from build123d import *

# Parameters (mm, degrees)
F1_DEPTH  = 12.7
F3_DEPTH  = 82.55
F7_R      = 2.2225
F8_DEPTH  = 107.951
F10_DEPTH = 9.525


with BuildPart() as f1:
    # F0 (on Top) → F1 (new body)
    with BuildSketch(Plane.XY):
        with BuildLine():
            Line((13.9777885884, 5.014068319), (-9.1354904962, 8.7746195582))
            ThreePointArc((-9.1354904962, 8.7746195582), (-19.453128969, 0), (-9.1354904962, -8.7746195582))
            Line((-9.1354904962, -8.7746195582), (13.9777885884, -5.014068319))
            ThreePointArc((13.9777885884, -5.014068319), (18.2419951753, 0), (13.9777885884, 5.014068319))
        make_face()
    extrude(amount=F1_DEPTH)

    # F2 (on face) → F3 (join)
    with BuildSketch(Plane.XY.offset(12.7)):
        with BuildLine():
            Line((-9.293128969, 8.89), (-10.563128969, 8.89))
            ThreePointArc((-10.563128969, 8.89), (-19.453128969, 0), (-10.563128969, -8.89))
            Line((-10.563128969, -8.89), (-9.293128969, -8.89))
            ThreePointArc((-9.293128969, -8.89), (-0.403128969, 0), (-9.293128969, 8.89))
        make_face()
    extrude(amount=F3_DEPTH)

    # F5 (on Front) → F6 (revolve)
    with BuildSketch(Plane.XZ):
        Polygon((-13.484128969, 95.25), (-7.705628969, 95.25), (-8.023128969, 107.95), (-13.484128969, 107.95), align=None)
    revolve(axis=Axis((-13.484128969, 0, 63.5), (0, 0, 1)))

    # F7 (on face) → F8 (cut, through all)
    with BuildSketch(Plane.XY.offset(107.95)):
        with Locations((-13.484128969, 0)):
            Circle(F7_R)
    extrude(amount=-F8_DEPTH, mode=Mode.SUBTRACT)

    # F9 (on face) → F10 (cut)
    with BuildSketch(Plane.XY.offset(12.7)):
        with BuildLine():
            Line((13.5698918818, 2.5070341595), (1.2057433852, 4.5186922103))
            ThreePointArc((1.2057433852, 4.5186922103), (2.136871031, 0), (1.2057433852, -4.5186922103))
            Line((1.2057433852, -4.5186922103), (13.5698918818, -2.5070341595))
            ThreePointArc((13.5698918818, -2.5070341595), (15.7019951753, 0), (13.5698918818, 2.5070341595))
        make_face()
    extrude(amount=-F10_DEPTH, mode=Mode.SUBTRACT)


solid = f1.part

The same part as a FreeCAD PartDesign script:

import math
import FreeCAD as App
import Part
import Sketcher
Q = App.Units.Quantity

doc = App.newDocument("Part")
params = doc.addObject("Spreadsheet::Sheet", "Params")
for row, (alias, value) in enumerate([
    ("sketch1_radius", "0.2 in"),
    ("sketch1_radius2", "0.35 in"),
    ("pad1_length", "0.5 in"),
    ("sketch2_radius", "0.35 in"),
    ("sketch2_width", "0.05 in"),
    ("pad2_length", "3.25 in"),
    ("sketch3_height", "0.5 in"),
    ("sketch3_width", "0.215 in"),
    ("revolution_angle", "360 deg"),
    ("sketch4_diameter", "0.175 in"),
    ("sketch5_radius", "0.1 in"),
    ("sketch5_radius2", "0.45 in"),
    ("pocket2_length", "0.375 in"),
], start=1):
    params.set(f"A{row}", alias)
    params.set(f"B{row}", "=" + value)
    params.setAlias(f"B{row}", alias)

body = doc.addObject("PartDesign::Body", "Body")

# Sketch on XY plane
sketch1 = body.newObject("Sketcher::SketchObject", "Sketch")
sketch1.AttachmentSupport = (doc.getObject("XY_Plane"), [""])
sketch1.MapMode = "FlatFace"
sketch1.addGeometry([
    Part.LineSegment(App.Vector(14, 5, 0), App.Vector(-9, 9, 0)),
    Part.ArcOfCircle(Part.Circle(App.Vector(-11, 0, 0), App.Vector(0, 0, 1), 9), math.radians(81), math.radians(279)),
    Part.LineSegment(App.Vector(-9, -9, 0), App.Vector(14, -5, 0)),
    Part.ArcOfCircle(Part.Circle(App.Vector(13, 0, 0), App.Vector(0, 0, 1), 5), math.radians(-81), math.radians(81)),
], False)
sketch1.addConstraint([
    Sketcher.Constraint("Tangent", 0, 2, 1, 1),
    Sketcher.Constraint("Tangent", 1, 2, 2, 1),
    Sketcher.Constraint("Tangent", 2, 2, 3, 1),
    Sketcher.Constraint("Tangent", 3, 2, 0, 1),
    Sketcher.Constraint("Symmetric", 0, 2, 1, 2, -1),
    Sketcher.Constraint("Radius", 3, Q("0.2 in")),
    Sketcher.Constraint("Radius", 1, Q("0.35 in")),
    Sketcher.Constraint("DistanceX", 1, 3, -1, 1, Q("10.563129 mm")),
    Sketcher.Constraint("DistanceX", 0, 2, -1, 1, Q("9.13549 mm")),
])
sketch1.setExpression("Constraints[5]", "Params.sketch1_radius")
sketch1.setExpression("Constraints[6]", "Params.sketch1_radius2")
pad1 = body.newObject("PartDesign::Pad", "Pad")
pad1.Profile = sketch1
pad1.setExpression("Length", "Params.pad1_length")

# Sketch on XY plane
sketch2 = body.newObject("Sketcher::SketchObject", "Sketch001")
sketch2.AttachmentSupport = (doc.getObject("XY_Plane"), [""])
sketch2.MapMode = "FlatFace"
sketch2.AttachmentOffset = App.Placement(App.Vector(0, 0, 0.5 * 25.4), App.Rotation())
sketch2.addGeometry([
    Part.LineSegment(App.Vector(-9.3, 8.9, 0), App.Vector(-10.6, 8.9, 0)),
    Part.ArcOfCircle(Part.Circle(App.Vector(-10.6, 0, 0), App.Vector(0, 0, 1), 8.9), math.radians(90), math.radians(270)),
    Part.LineSegment(App.Vector(-10.6, -8.9, 0), App.Vector(-9.3, -8.9, 0)),
    Part.ArcOfCircle(Part.Circle(App.Vector(-9.3, 0, 0), App.Vector(0, 0, 1), 8.9), math.radians(-90), math.radians(90)),
], False)
sketch2.addConstraint([
    Sketcher.Constraint("Tangent", 0, 2, 1, 1),
    Sketcher.Constraint("Tangent", 1, 2, 2, 1),
    Sketcher.Constraint("Tangent", 2, 2, 3, 1),
    Sketcher.Constraint("Tangent", 3, 2, 0, 1),
    Sketcher.Constraint("Horizontal", 0),
    Sketcher.Constraint("Horizontal", 2),
    Sketcher.Constraint("PointOnObject", 1, 3, -1),
    Sketcher.Constraint("Radius", 1, Q("0.35 in")),
    Sketcher.Constraint("DistanceX", 0, 2, 0, 1, Q("0.05 in")),
    Sketcher.Constraint("DistanceX", 1, 3, -1, 1, Q("10.563129 mm")),
])
sketch2.setExpression("Constraints[7]", "Params.sketch2_radius")
sketch2.setExpression("Constraints[8]", "Params.sketch2_width")
pad2 = body.newObject("PartDesign::Pad", "Pad001")
pad2.Profile = sketch2
pad2.setExpression("Length", "Params.pad2_length")

# Sketch on XZ plane
sketch3 = body.newObject("Sketcher::SketchObject", "Sketch002")
sketch3.AttachmentSupport = (doc.getObject("XZ_Plane"), [""])
sketch3.MapMode = "FlatFace"
sketch3.addGeometry([
    Part.LineSegment(App.Vector(-13, 95, 0), App.Vector(-8, 95, 0)),
    Part.LineSegment(App.Vector(-8, 95, 0), App.Vector(-8, 108, 0)),
    Part.LineSegment(App.Vector(-8, 108, 0), App.Vector(-13, 108, 0)),
    Part.LineSegment(App.Vector(-13, 108, 0), App.Vector(-13, 95, 0)),
], False)
sketch3.addGeometry(Part.LineSegment(App.Vector(-13, 95, 0), App.Vector(-13, 108, 0)), True)  # axis
sketch3.addConstraint([
    Sketcher.Constraint("Coincident", 0, 2, 1, 1),
    Sketcher.Constraint("Coincident", 1, 2, 2, 1),
    Sketcher.Constraint("Coincident", 2, 2, 3, 1),
    Sketcher.Constraint("Coincident", 3, 2, 0, 1),
    Sketcher.Constraint("Horizontal", 0),
    Sketcher.Constraint("Horizontal", 2),
    Sketcher.Constraint("Vertical", 3),
    Sketcher.Constraint("Vertical", 4),
    Sketcher.Constraint("Coincident", 4, 1, 3, 2),
    Sketcher.Constraint("Horizontal", 1, 2, 4, 2),
    Sketcher.Constraint("DistanceY", 3, 2, 3, 1, Q("0.5 in")),
    Sketcher.Constraint("DistanceX", 2, 2, 2, 1, Q("0.215 in")),
    Sketcher.Constraint("DistanceY", -1, 1, 0, 2, Q("3.75 in")),
    Sketcher.Constraint("DistanceX", 0, 1, 0, 2, Q("0.2275 in")),
    Sketcher.Constraint("DistanceX", 0, 2, -1, 1, Q("7.705629 mm")),
])
sketch3.setExpression("Constraints[10]", "Params.sketch3_height")
sketch3.setExpression("Constraints[11]", "Params.sketch3_width")
revolution = body.newObject("PartDesign::Revolution", "Revolution")
revolution.Profile = sketch3
revolution.ReferenceAxis = (sketch3, ["Axis0"])
revolution.setExpression("Angle", "Params.revolution_angle")

# Sketch on XY plane
sketch4 = body.newObject("Sketcher::SketchObject", "Sketch003")
sketch4.AttachmentSupport = (doc.getObject("XY_Plane"), [""])
sketch4.MapMode = "FlatFace"
sketch4.AttachmentOffset = App.Placement(App.Vector(0, 0, 4.25 * 25.4), App.Rotation())
sketch4.addGeometry(Part.Circle(App.Vector(-13.5, 0, 0), App.Vector(0, 0, 1), 2.2), False)
sketch4.addConstraint([
    Sketcher.Constraint("PointOnObject", 0, 3, -1),
    Sketcher.Constraint("Diameter", 0, Q("0.175 in")),
    Sketcher.Constraint("DistanceX", 0, 3, -1, 1, Q("13.484129 mm")),
])
sketch4.setExpression("Constraints[1]", "Params.sketch4_diameter")
pocket1 = body.newObject("PartDesign::Pocket", "Pocket")
pocket1.Profile = sketch4
pocket1.Type = "ThroughAll"

# Sketch on XY plane
sketch5 = body.newObject("Sketcher::SketchObject", "Sketch004")
sketch5.AttachmentSupport = (doc.getObject("XY_Plane"), [""])
sketch5.MapMode = "FlatFace"
sketch5.AttachmentOffset = App.Placement(App.Vector(0, 0, 0.5 * 25.4), App.Rotation())
sketch5.addGeometry([
    Part.LineSegment(App.Vector(13.6, 2.5, 0), App.Vector(1.2, 4.5, 0)),
    Part.ArcOfCircle(Part.Circle(App.Vector(-9.3, 0, 0), App.Vector(0, 0, 1), 11.4), math.radians(-23), math.radians(23)),
    Part.LineSegment(App.Vector(1.2, -4.5, 0), App.Vector(13.6, -2.5, 0)),
    Part.ArcOfCircle(Part.Circle(App.Vector(13.2, 0, 0), App.Vector(0, 0, 1), 2.5), math.radians(-81), math.radians(81)),
], False)
sketch5.addConstraint([
    Sketcher.Constraint("Coincident", 0, 2, 1, 2),
    Sketcher.Constraint("Coincident", 1, 1, 2, 1),
    Sketcher.Constraint("Tangent", 2, 2, 3, 1),
    Sketcher.Constraint("Tangent", 3, 2, 0, 1),
    Sketcher.Constraint("Symmetric", 0, 2, 1, 1, -1),
    Sketcher.Constraint("PointOnObject", 3, 3, -1),
    Sketcher.Constraint("Radius", 3, Q("0.1 in")),
    Sketcher.Constraint("Radius", 1, Q("0.45 in")),
    Sketcher.Constraint("Distance", 0, Q("12.526729 mm")),
    Sketcher.Constraint("DistanceX", 1, 3, -1, 1, Q("9.293129 mm")),
    Sketcher.Constraint("DistanceX", -1, 1, 2, 2, Q("13.569892 mm")),
])
sketch5.setExpression("Constraints[6]", "Params.sketch5_radius")
sketch5.setExpression("Constraints[7]", "Params.sketch5_radius2")
pocket2 = body.newObject("PartDesign::Pocket", "Pocket001")
pocket2.Profile = sketch5
pocket2.setExpression("Length", "Params.pocket2_length")

doc.recompute()
